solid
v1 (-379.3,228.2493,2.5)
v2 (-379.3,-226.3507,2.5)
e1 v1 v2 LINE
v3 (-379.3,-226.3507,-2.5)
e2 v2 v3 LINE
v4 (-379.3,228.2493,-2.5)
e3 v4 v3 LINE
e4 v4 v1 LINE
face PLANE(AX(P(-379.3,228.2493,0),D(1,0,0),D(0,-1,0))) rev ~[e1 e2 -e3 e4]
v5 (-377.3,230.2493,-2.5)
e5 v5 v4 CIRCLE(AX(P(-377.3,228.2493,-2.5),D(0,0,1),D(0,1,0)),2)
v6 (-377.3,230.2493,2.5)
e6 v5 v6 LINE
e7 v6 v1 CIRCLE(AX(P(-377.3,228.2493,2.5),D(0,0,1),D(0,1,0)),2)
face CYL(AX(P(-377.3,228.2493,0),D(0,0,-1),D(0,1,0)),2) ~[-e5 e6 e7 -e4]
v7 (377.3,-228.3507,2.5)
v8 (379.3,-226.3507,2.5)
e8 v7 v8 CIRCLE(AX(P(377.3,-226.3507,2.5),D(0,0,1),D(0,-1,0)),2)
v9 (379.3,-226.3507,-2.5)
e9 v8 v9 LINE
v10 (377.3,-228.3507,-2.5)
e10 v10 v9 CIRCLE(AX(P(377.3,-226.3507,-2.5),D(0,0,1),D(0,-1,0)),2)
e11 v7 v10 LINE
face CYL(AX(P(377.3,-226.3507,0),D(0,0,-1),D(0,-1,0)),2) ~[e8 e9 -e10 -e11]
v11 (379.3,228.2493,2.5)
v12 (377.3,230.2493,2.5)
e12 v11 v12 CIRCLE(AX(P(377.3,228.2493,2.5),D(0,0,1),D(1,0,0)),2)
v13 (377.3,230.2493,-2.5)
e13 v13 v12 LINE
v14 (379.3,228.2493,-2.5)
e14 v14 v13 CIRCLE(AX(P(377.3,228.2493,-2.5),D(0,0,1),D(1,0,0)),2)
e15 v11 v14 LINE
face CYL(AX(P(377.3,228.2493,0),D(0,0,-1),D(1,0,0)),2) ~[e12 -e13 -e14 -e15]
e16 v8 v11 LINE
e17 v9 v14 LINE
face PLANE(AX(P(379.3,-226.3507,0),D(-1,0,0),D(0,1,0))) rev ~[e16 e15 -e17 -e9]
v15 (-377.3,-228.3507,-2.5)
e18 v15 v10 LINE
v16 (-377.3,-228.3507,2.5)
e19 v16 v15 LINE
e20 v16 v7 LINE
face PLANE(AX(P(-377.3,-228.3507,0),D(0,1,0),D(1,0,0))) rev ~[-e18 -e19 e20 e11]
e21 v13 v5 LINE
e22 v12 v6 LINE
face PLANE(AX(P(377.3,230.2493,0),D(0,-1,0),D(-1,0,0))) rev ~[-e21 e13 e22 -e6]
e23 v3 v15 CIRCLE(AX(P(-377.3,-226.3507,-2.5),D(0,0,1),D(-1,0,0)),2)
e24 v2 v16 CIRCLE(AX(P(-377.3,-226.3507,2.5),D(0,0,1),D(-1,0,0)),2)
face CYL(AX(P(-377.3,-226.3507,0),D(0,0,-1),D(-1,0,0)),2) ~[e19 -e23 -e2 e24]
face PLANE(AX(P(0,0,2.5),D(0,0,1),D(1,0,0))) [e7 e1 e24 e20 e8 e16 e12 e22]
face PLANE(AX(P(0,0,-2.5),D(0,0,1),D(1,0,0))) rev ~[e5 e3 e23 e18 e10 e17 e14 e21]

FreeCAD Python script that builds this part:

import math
import FreeCAD as App
import Part
import Sketcher

V = App.Vector
Q = App.Units.Quantity

doc = App.newDocument("Part")
body = doc.addObject("PartDesign::Body", "Body")

# Sketch on XY plane
sketch1 = body.newObject("Sketcher::SketchObject", "Sketch")
sketch1.AttachmentSupport = (doc.getObject("XY_Plane"), [""])
sketch1.MapMode = "FlatFace"
sketch1.addGeometry([
    Part.ArcOfCircle(Part.Circle(V(377.3, 228.2, 0), V(0, 0, 1), 2), math.radians(0), math.radians(90)),  # 0
    Part.LineSegment(V(377.3, 230.2, 0), V(-377.3, 230.2, 0)),  # 1
    Part.ArcOfCircle(Part.Circle(V(-377.3, 228.2, 0), V(0, 0, 1), 2), math.radians(90), math.radians(180)),  # 2
    Part.LineSegment(V(-379.3, 228.2, 0), V(-379.3, -226.4, 0)),  # 3
    Part.ArcOfCircle(Part.Circle(V(-377.3, -226.4, 0), V(0, 0, 1), 2), math.radians(180), math.radians(270)),  # 4
    Part.LineSegment(V(-377.3, -228.4, 0), V(377.3, -228.4, 0)),  # 5
    Part.ArcOfCircle(Part.Circle(V(377.3, -226.4, 0), V(0, 0, 1), 2), math.radians(-90), math.radians(0)),  # 6
    Part.LineSegment(V(379.3, -226.4, 0), V(379.3, 228.2, 0)),  # 7
], False)
sketch1.addConstraint([
    Sketcher.Constraint("Tangent", 0, 2, 1, 1),
    Sketcher.Constraint("Tangent", 1, 2, 2, 1),
    Sketcher.Constraint("Tangent", 2, 2, 3, 1),
    Sketcher.Constraint("Tangent", 3, 2, 4, 1),
    Sketcher.Constraint("Tangent", 4, 2, 5, 1),
    Sketcher.Constraint("Tangent", 5, 2, 6, 1),
    Sketcher.Constraint("Tangent", 6, 2, 7, 1),
    Sketcher.Constraint("Tangent", 7, 2, 0, 1),
    Sketcher.Constraint("Horizontal", 1),
    Sketcher.Constraint("Vertical", 3),
    Sketcher.Constraint("Horizontal", 5),
    Sketcher.Constraint("Vertical", 7),
    Sketcher.Constraint("Equal", 0, 2),
    Sketcher.Constraint("Equal", 2, 4),
    Sketcher.Constraint("Equal", 4, 6),
    Sketcher.Constraint("Radius", 0, Q("2 mm")),
    Sketcher.Constraint("DistanceX", 1, 2, 1, 1, Q("754.6 mm")),
    Sketcher.Constraint("DistanceY", 3, 2, 3, 1, Q("454.6 mm")),
    Sketcher.Constraint("DistanceX", -1, 1, 0, 3, Q("377.3 mm")),
    Sketcher.Constraint("DistanceY", -1, 1, 0, 3, Q("228.2493 mm")),
])
pad1 = body.newObject("PartDesign::Pad", "Pad")
pad1.Profile = sketch1
pad1.Length = 5
pad1.Midplane = True

doc.recompute()
